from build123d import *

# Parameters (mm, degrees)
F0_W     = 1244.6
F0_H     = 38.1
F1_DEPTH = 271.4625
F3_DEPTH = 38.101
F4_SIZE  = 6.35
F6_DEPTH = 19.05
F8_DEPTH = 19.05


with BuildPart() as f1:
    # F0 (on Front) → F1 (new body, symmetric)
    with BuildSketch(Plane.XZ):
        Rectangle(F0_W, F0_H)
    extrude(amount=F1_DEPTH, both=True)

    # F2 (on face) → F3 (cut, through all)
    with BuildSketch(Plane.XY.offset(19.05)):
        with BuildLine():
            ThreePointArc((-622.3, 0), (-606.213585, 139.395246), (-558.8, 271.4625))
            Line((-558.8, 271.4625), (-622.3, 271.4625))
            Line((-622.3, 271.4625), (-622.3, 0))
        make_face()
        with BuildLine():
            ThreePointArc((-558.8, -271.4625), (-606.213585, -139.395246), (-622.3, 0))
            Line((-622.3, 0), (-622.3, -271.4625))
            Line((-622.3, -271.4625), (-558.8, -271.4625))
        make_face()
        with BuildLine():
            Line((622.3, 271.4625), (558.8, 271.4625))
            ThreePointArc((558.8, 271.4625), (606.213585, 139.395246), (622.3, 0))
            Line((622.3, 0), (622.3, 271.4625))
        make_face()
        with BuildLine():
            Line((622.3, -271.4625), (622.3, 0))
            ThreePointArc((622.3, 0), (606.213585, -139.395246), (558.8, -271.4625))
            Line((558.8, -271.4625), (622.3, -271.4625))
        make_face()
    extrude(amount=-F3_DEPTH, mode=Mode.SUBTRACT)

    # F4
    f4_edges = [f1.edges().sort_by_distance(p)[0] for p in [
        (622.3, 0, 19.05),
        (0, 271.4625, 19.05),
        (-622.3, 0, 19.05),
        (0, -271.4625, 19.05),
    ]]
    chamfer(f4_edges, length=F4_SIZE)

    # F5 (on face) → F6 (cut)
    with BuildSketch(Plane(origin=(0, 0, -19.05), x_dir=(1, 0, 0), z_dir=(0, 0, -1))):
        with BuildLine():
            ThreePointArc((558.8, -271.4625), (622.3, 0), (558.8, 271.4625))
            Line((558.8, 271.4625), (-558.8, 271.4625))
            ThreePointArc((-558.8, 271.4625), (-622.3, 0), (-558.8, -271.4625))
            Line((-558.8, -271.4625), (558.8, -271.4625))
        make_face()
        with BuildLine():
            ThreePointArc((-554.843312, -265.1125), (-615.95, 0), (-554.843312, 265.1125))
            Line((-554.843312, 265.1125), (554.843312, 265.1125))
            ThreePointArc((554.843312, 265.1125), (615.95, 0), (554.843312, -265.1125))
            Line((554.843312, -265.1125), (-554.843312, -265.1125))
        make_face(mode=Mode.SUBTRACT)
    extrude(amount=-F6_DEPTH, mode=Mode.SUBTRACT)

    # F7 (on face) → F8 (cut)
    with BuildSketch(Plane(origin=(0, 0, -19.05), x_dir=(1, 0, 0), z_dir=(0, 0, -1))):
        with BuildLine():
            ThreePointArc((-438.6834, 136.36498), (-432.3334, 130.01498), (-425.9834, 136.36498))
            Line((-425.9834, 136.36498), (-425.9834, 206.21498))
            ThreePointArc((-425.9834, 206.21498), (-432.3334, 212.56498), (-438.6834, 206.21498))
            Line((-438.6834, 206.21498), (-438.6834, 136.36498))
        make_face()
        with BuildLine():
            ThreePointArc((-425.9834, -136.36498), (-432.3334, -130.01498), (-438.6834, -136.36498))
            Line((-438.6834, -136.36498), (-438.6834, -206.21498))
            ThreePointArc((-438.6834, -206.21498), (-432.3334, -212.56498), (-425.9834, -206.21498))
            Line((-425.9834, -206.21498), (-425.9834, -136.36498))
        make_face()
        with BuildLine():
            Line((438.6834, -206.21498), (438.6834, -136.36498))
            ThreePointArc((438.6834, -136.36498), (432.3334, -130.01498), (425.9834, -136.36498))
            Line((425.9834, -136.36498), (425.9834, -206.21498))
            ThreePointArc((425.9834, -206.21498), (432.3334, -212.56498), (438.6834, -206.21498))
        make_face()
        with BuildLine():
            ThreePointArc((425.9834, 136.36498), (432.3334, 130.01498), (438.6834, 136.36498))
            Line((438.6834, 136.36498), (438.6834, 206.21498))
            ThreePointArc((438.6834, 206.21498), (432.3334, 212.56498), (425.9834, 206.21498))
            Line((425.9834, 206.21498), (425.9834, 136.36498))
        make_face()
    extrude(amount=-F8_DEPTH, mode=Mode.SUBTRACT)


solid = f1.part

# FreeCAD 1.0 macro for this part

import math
import FreeCAD as App
import Part
import Sketcher

V = App.Vector
Q = App.Units.Quantity


def edges_at(feature, points):
    """Names of the edges that pass closest to the given points."""
    edges = feature.Shape.Edges
    near = lambda p: min(range(len(edges)), key=lambda i: edges[i].distToShape(Part.Vertex(*p))[0])
    return sorted({f"Edge{near(p) + 1}" for p in points})

doc = App.newDocument("Part")
body = doc.addObject("PartDesign::Body", "Body")

# Sketch on XZ plane
sketch1 = body.newObject("Sketcher::SketchObject", "Sketch")
sketch1.AttachmentSupport = (doc.getObject("XZ_Plane"), [""])
sketch1.MapMode = "FlatFace"
sketch1.addGeometry([
    Part.LineSegment(V(-622, 19, 0), V(-622, -19, 0)),
    Part.LineSegment(V(-622, -19, 0), V(622, -19, 0)),
    Part.LineSegment(V(622, -19, 0), V(622, 19, 0)),
    Part.LineSegment(V(622, 19, 0), V(-622, 19, 0)),
], False)
sketch1.addConstraint([
    Sketcher.Constraint("Coincident", 0, 2, 1, 1),
    Sketcher.Constraint("Coincident", 1, 2, 2, 1),
    Sketcher.Constraint("Coincident", 2, 2, 3, 1),
    Sketcher.Constraint("Coincident", 3, 2, 0, 1),
    Sketcher.Constraint("Vertical", 0),
    Sketcher.Constraint("Horizontal", 1),
    Sketcher.Constraint("Vertical", 2),
    Sketcher.Constraint("Horizontal", 3),
    Sketcher.Constraint("Symmetric", 0, 2, 2, 2, -1, 1),
    Sketcher.Constraint("DistanceX", 1, 1, 1, 2, Q("49 in")),
    Sketcher.Constraint("DistanceY", 0, 2, 0, 1, Q("1.5 in")),
])
pad1 = body.newObject("PartDesign::Pad", "Pad")
pad1.Profile = sketch1
pad1.Length = Q("21.375 in")
pad1.Midplane = True

# Sketch on XY plane
sketch2 = body.newObject("Sketcher::SketchObject", "Sketch001")
sketch2.AttachmentSupport = (doc.getObject("XY_Plane"), [""])
sketch2.MapMode = "FlatFace"
sketch2.AttachmentOffset = App.Placement(V(0, 0, 0.75 * 25.4), App.Rotation())
sketch2.addGeometry([
    Part.ArcOfCircle(Part.Circle(V(-10, 0, 0), V(0, 0, 1), 612), math.radians(154), math.radians(180)),  # 0
    Part.LineSegment(V(-559, 271, 0), V(-622, 271, 0)),  # 1
    Part.LineSegment(V(-622, 271, 0), V(-622, 0, 0)),  # 2
    Part.ArcOfCircle(Part.Circle(V(-10, 0, 0), V(0, 0, 1), 612), math.radians(180), math.radians(206)),  # 3
    Part.LineSegment(V(-622, 0, 0), V(-622, -271, 0)),  # 4
    Part.LineSegment(V(-622, -271, 0), V(-559, -271, 0)),  # 5
    Part.LineSegment(V(622, 271, 0), V(559, 271, 0)),  # 6
    Part.ArcOfCircle(Part.Circle(V(10, 0, 0), V(0, 0, 1), 612), math.radians(0), math.radians(26)),  # 7
    Part.LineSegment(V(622, 0, 0), V(622, 271, 0)),  # 8
    Part.LineSegment(V(622, -271, 0), V(622, 0, 0)),  # 9
    Part.ArcOfCircle(Part.Circle(V(10, 0, 0), V(0, 0, 1), 612), math.radians(-26), math.radians(0)),  # 10
    Part.LineSegment(V(559, -271, 0), V(622, -271, 0)),  # 11
], False)
sketch2.addConstraint([
    Sketcher.Constraint("Coincident", 0, 1, 1, 1),
    Sketcher.Constraint("Coincident", 1, 2, 2, 1),
    Sketcher.Constraint("Tangent", 2, 2, 0, 2),
    Sketcher.Constraint("Tangent", 3, 1, 4, 1),
    Sketcher.Constraint("Coincident", 4, 2, 5, 1),
    Sketcher.Constraint("Coincident", 5, 2, 3, 2),
    Sketcher.Constraint("Coincident", 6, 2, 7, 2),
    Sketcher.Constraint("Tangent", 7, 1, 8, 1),
    Sketcher.Constraint("Coincident", 8, 2, 6, 1),
    Sketcher.Constraint("Tangent", 9, 2, 10, 2),
    Sketcher.Constraint("Coincident", 10, 1, 11, 1),
    Sketcher.Constraint("Coincident", 11, 2, 9, 1),
    Sketcher.Constraint("Horizontal", 1),
    Sketcher.Constraint("Vertical", 2),
    Sketcher.Constraint("Vertical", 4),
    Sketcher.Constraint("Horizontal", 5),
    Sketcher.Constraint("Horizontal", 6),
    Sketcher.Constraint("Vertical", 8),
    Sketcher.Constraint("Vertical", 9),
    Sketcher.Constraint("Horizontal", 11),
    Sketcher.Constraint("Coincident", 3, 3, 0, 3),
    Sketcher.Constraint("Coincident", 10, 3, 7, 3),
    Sketcher.Constraint("Equal", 0, 3),
    Sketcher.Constraint("Equal", 3, 7),
    Sketcher.Constraint("Equal", 7, 10),
    Sketcher.Constraint("Symmetric", 0, 3, 7, 3, -1, 1),
    Sketcher.Constraint("PointOnObject", 0, 3, -1),
    Sketcher.Constraint("Horizontal", 1, 2, 6, 2),
    Sketcher.Constraint("Equal", 1, 5),
    Sketcher.Constraint("Equal", 6, 11),
    Sketcher.Constraint("DistanceX", 1, 2, 1, 1, Q("2.5 in")),
    Sketcher.Constraint("DistanceX", 5, 2, -1, 1, Q("22 in")),
    Sketcher.Constraint("DistanceY", 2, 2, 2, 1, Q("10.6875 in")),
])
pocket1 = body.newObject("PartDesign::Pocket", "Pocket")
pocket1.Profile = sketch2
pocket1.Type = "ThroughAll"
doc.recompute()

chamfer = body.newObject("PartDesign::Chamfer", "Chamfer")
chamfer.Base = (pocket1, edges_at(pocket1, [
    (606.214, -139.395, 19.05),
    (0, 271.462, 19.05),
    (-606.214, 139.395, 19.05),
    (0, -271.462, 19.05),
]))
chamfer.Size = Q("0.25 in")

# Sketch on XY plane
sketch3 = body.newObject("Sketcher::SketchObject", "Sketch002")
sketch3.AttachmentSupport = (doc.getObject("XY_Plane"), [""])
sketch3.MapMode = "FlatFace"
sketch3.AttachmentOffset = App.Placement(V(0, 0, -0.75 * 25.4), App.Rotation())
sketch3.addGeometry([
    Part.ArcOfCircle(Part.Circle(V(10, 0, 0), V(0, 0, 1), 612), math.radians(-26), math.radians(26)),  # 0
    Part.LineSegment(V(559, -271, 0), V(-559, -271, 0)),  # 1
    Part.ArcOfCircle(Part.Circle(V(-10, 0, 0), V(0, 0, 1), 612), math.radians(154), math.radians(206)),  # 2
    Part.LineSegment(V(-559, 271, 0), V(559, 271, 0)),  # 3
    Part.LineSegment(V(555, 265, 0), V(-555, 265, 0)),  # 4
    Part.ArcOfCircle(Part.Circle(V(-10, 0, 0), V(0, 0, 1), 606), math.radians(154), math.radians(206)),  # 5
    Part.LineSegment(V(-555, -265, 0), V(555, -265, 0)),  # 6
    Part.ArcOfCircle(Part.Circle(V(10, 0, 0), V(0, 0, 1), 606), math.radians(-26), math.radians(26)),  # 7
], False)
sketch3.addConstraint([
    Sketcher.Constraint("Coincident", 0, 1, 1, 1),
    Sketcher.Constraint("Coincident", 1, 2, 2, 2),
    Sketcher.Constraint("Coincident", 2, 1, 3, 1),
    Sketcher.Constraint("Coincident", 3, 2, 0, 2),
    Sketcher.Constraint("Coincident", 4, 2, 5, 1),
    Sketcher.Constraint("Coincident", 5, 2, 6, 1),
    Sketcher.Constraint("Coincident", 6, 2, 7, 1),
    Sketcher.Constraint("Coincident", 7, 2, 4, 1),
    Sketcher.Constraint("Horizontal", 1),
    Sketcher.Constraint("Horizontal", 3),
    Sketcher.Constraint("Horizontal", 4),
    Sketcher.Constraint("Horizontal", 6),
    Sketcher.Constraint("Coincident", 5, 3, 2, 3),
    Sketcher.Constraint("Coincident", 7, 3, 0, 3),
    Sketcher.Constraint("Equal", 0, 2),
    Sketcher.Constraint("Equal", 5, 7),
    Sketcher.Constraint("Symmetric", 0, 3, 2, 3, -1, 1),
    Sketcher.Constraint("PointOnObject", 0, 3, -1),
    Sketcher.Constraint("Equal", 1, 3),
    Sketcher.Constraint("Equal", 4, 6),
    Sketcher.Constraint("DistanceX", 1, 2, 1, 1, Q("44 in")),
    Sketcher.Constraint("DistanceY", 1, 2, -1, 1, Q("10.6875 in")),
    Sketcher.Constraint("DistanceY", -1, 1, 4, 2, Q("10.4375 in")),
    Sketcher.Constraint("Radius", 0, Q("612.001094 mm")),
    Sketcher.Constraint("Radius", 5, Q("605.651095 mm")),
])
pocket2 = body.newObject("PartDesign::Pocket", "Pocket001")
pocket2.Profile = sketch3
pocket2.Length = Q("0.75 in")
pocket2.Reversed = True

# Sketch on XY plane
sketch4 = body.newObject("Sketcher::SketchObject", "Sketch003")
sketch4.AttachmentSupport = (doc.getObject("XY_Plane"), [""])
sketch4.MapMode = "FlatFace"
sketch4.AttachmentOffset = App.Placement(V(0, 0, -0.75 * 25.4), App.Rotation())
sketch4.addGeometry([
    Part.ArcOfCircle(Part.Circle(V(-432, -136, 0), V(0, 0, 1), 6), math.radians(0), math.radians(180)),  # 0
    Part.LineSegment(V(-426, -136, 0), V(-426, -206, 0)),  # 1
    Part.ArcOfCircle(Part.Circle(V(-432, -206, 0), V(0, 0, 1), 6), math.radians(180), math.radians(360)),  # 2
    Part.LineSegment(V(-439, -206, 0), V(-439, -136, 0)),  # 3
    Part.ArcOfCircle(Part.Circle(V(-432, 136, 0), V(0, 0, 1), 6), math.radians(180), math.radians(360)),  # 4
    Part.LineSegment(V(-439, 136, 0), V(-439, 206, 0)),  # 5
    Part.ArcOfCircle(Part.Circle(V(-432, 206, 0), V(0, 0, 1), 6), math.radians(0), math.radians(180)),  # 6
    Part.LineSegment(V(-426, 206, 0), V(-426, 136, 0)),  # 7
    Part.LineSegment(V(439, 206, 0), V(439, 136, 0)),  # 8
    Part.ArcOfCircle(Part.Circle(V(432, 136, 0), V(0, 0, 1), 6), math.radians(180), math.radians(360)),  # 9
    Part.LineSegment(V(426, 136, 0), V(426, 206, 0)),  # 10
    Part.ArcOfCircle(Part.Circle(V(432, 206, 0), V(0, 0, 1), 6), math.radians(0), math.radians(180)),  # 11
    Part.ArcOfCircle(Part.Circle(V(432, -136, 0), V(0, 0, 1), 6), math.radians(0), math.radians(180)),  # 12
    Part.LineSegment(V(439, -136, 0), V(439, -206, 0)),  # 13
    Part.ArcOfCircle(Part.Circle(V(432, -206, 0), V(0, 0, 1), 6), math.radians(180), math.radians(360)),  # 14
    Part.LineSegment(V(426, -206, 0), V(426, -136, 0)),  # 15
], False)
sketch4.addConstraint([
    Sketcher.Constraint("Tangent", 0, 1, 1, 1),
    Sketcher.Constraint("Tangent", 1, 2, 2, 2),
    Sketcher.Constraint("Tangent", 2, 1, 3, 1),
    Sketcher.Constraint("Tangent", 3, 2, 0, 2),
    Sketcher.Constraint("Tangent", 4, 1, 5, 1),
    Sketcher.Constraint("Tangent", 5, 2, 6, 2),
    Sketcher.Constraint("Tangent", 6, 1, 7, 1),
    Sketcher.Constraint("Tangent", 7, 2, 4, 2),
    Sketcher.Constraint("Tangent", 8, 2, 9, 2),
    Sketcher.Constraint("Tangent", 9, 1, 10, 1),
    Sketcher.Constraint("Tangent", 10, 2, 11, 2),
    Sketcher.Constraint("Tangent", 11, 1, 8, 1),
    Sketcher.Constraint("Tangent", 12, 1, 13, 1),
    Sketcher.Constraint("Tangent", 13, 2, 14, 2),
    Sketcher.Constraint("Tangent", 14, 1, 15, 1),
    Sketcher.Constraint("Tangent", 15, 2, 12, 2),
    Sketcher.Constraint("Vertical", 1),
    Sketcher.Constraint("Vertical", 3),
    Sketcher.Constraint("Vertical", 5),
    Sketcher.Constraint("Vertical", 7),
    Sketcher.Constraint("Vertical", 8),
    Sketcher.Constraint("Vertical", 10),
    Sketcher.Constraint("Vertical", 13),
    Sketcher.Constraint("Vertical", 15),
    Sketcher.Constraint("Equal", 2, 4),
    Sketcher.Constraint("Equal", 6, 9),
    Sketcher.Constraint("Equal", 11, 12),
    Sketcher.Constraint("Symmetric", 0, 3, 9, 3, -1, 1),
    Sketcher.Constraint("Symmetric", 4, 3, 12, 3, -1, 1),
    Sketcher.Constraint("Symmetric", 4, 3, 9, 3, -2),
    Sketcher.Constraint("Horizontal", 6, 3, 11, 3),
    Sketcher.Constraint("Horizontal", 2, 3, 14, 3),
    Sketcher.Constraint("Equal", 3, 5),
    Sketcher.Constraint("Radius", 0, Q("0.25 in")),
    Sketcher.Constraint("DistanceY", 1, 2, 1, 1, Q("2.75 in")),
    Sketcher.Constraint("DistanceX", 0, 3, -1, 1, Q("17.021 in")),
    Sketcher.Constraint("DistanceY", 0, 3, -1, 1, Q("5.3687 in")),
])
pocket3 = body.newObject("PartDesign::Pocket", "Pocket002")
pocket3.Profile = sketch4
pocket3.Length = Q("0.75 in")
pocket3.Reversed = True

doc.recompute()
